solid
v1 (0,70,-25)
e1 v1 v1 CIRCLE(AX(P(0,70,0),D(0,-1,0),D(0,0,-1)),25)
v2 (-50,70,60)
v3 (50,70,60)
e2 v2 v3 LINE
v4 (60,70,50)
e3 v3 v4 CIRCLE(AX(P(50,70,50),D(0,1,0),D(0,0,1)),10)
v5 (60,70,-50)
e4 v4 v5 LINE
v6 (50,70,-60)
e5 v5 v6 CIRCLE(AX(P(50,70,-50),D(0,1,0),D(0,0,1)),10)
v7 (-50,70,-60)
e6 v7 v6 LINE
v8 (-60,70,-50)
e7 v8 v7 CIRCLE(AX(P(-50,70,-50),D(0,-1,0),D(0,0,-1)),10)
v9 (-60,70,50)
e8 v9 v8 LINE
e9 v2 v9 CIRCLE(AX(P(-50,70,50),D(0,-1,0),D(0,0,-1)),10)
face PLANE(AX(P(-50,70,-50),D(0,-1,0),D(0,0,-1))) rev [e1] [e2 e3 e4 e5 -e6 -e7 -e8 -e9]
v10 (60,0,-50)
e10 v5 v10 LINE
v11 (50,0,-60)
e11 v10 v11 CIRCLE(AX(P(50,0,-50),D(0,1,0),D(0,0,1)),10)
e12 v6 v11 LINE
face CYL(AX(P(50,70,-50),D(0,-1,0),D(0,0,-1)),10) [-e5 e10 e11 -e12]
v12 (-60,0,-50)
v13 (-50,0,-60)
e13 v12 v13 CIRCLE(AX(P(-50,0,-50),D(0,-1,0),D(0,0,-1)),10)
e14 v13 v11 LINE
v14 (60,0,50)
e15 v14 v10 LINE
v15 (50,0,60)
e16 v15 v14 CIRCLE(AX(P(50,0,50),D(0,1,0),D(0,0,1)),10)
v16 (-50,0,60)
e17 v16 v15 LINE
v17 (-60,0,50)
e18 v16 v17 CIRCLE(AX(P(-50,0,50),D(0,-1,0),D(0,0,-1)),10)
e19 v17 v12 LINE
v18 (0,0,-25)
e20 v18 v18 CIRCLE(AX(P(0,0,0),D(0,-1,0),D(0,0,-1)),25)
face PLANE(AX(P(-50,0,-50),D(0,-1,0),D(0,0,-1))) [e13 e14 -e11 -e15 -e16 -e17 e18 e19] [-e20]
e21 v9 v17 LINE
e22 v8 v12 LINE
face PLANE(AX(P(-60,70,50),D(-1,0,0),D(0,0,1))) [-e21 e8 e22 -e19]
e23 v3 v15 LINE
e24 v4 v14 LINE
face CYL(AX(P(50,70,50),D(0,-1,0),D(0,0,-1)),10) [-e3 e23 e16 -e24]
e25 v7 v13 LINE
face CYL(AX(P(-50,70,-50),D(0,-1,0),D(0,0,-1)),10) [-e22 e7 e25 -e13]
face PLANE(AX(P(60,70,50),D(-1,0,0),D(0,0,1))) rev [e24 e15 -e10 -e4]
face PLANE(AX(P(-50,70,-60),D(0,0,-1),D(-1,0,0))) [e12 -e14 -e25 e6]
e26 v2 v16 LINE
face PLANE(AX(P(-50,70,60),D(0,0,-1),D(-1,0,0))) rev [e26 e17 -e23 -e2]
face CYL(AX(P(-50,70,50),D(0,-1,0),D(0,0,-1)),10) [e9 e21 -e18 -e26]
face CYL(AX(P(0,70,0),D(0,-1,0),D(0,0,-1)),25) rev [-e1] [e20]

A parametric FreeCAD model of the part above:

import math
import FreeCAD as App
import Part
import Sketcher
Q = App.Units.Quantity

doc = App.newDocument("Part")
body = doc.addObject("PartDesign::Body", "Body")

# Sketch on XZ plane
sketch1 = body.newObject("Sketcher::SketchObject", "Sketch")
sketch1.AttachmentSupport = (doc.getObject("XZ_Plane"), [""])
sketch1.MapMode = "FlatFace"
sketch1.addGeometry(Part.LineSegment(App.Vector(-50, 60, 0), App.Vector(50, 60, 0)), False)
sketch1.addGeometry(Part.ArcOfCircle(Part.Circle(App.Vector(50, 50, 0), App.Vector(0, 0, 1), 10), math.radians(0), math.radians(90)), False)
sketch1.addGeometry(Part.LineSegment(App.Vector(60, 50, 0), App.Vector(60, -50, 0)), False)
sketch1.addGeometry(Part.ArcOfCircle(Part.Circle(App.Vector(50, -50, 0), App.Vector(0, 0, 1), 10), math.radians(-90), math.radians(0)), False)
sketch1.addGeometry(Part.LineSegment(App.Vector(50, -60, 0), App.Vector(-50, -60, 0)), False)
sketch1.addGeometry(Part.ArcOfCircle(Part.Circle(App.Vector(-50, -50, 0), App.Vector(0, 0, 1), 10), math.radians(180), math.radians(270)), False)
sketch1.addGeometry(Part.LineSegment(App.Vector(-60, -50, 0), App.Vector(-60, 50, 0)), False)
sketch1.addGeometry(Part.ArcOfCircle(Part.Circle(App.Vector(-50, 50, 0), App.Vector(0, 0, 1), 10), math.radians(90), math.radians(180)), False)
sketch1.addConstraint(Sketcher.Constraint("Tangent", 0, 2, 1, 2))
sketch1.addConstraint(Sketcher.Constraint("Tangent", 1, 1, 2, 1))
sketch1.addConstraint(Sketcher.Constraint("Tangent", 2, 2, 3, 2))
sketch1.addConstraint(Sketcher.Constraint("Tangent", 3, 1, 4, 1))
sketch1.addConstraint(Sketcher.Constraint("Tangent", 4, 2, 5, 2))
sketch1.addConstraint(Sketcher.Constraint("Tangent", 5, 1, 6, 1))
sketch1.addConstraint(Sketcher.Constraint("Tangent", 6, 2, 7, 2))
sketch1.addConstraint(Sketcher.Constraint("Tangent", 7, 1, 0, 1))
sketch1.addConstraint(Sketcher.Constraint("Horizontal", 0))
sketch1.addConstraint(Sketcher.Constraint("Vertical", 2))
sketch1.addConstraint(Sketcher.Constraint("Horizontal", 4))
sketch1.addConstraint(Sketcher.Constraint("Vertical", 6))
sketch1.addConstraint(Sketcher.Constraint("Equal", 1, 3))
sketch1.addConstraint(Sketcher.Constraint("Equal", 3, 5))
sketch1.addConstraint(Sketcher.Constraint("Equal", 5, 7))
sketch1.addConstraint(Sketcher.Constraint("Symmetric", 1, 3, 5, 3, -1, 1))
sketch1.addConstraint(Sketcher.Constraint("Equal", 4, 2))
sketch1.addConstraint(Sketcher.Constraint("Radius", 1, Q("10 mm")))
sketch1.addConstraint(Sketcher.Constraint("DistanceX", 0, 1, 0, 2, Q("100 mm")))
pad1 = body.newObject("PartDesign::Pad", "Pad")
pad1.Profile = sketch1
pad1.Length = 70
pad1.Reversed = True

# Sketch on XZ plane
sketch2 = body.newObject("Sketcher::SketchObject", "Sketch001")
sketch2.AttachmentSupport = (doc.getObject("XZ_Plane"), [""])
sketch2.MapMode = "FlatFace"
sketch2.addGeometry(Part.Circle(App.Vector(0, 0, 0), App.Vector(0, 0, 1), 25), False)
sketch2.addConstraint(Sketcher.Constraint("Coincident", 0, 3, -1, 1))
sketch2.addConstraint(Sketcher.Constraint("Diameter", 0, Q("50 mm")))
pocket1 = body.newObject("PartDesign::Pocket", "Pocket")
pocket1.Profile = sketch2
pocket1.Type = "ThroughAll"

doc.recompute()
